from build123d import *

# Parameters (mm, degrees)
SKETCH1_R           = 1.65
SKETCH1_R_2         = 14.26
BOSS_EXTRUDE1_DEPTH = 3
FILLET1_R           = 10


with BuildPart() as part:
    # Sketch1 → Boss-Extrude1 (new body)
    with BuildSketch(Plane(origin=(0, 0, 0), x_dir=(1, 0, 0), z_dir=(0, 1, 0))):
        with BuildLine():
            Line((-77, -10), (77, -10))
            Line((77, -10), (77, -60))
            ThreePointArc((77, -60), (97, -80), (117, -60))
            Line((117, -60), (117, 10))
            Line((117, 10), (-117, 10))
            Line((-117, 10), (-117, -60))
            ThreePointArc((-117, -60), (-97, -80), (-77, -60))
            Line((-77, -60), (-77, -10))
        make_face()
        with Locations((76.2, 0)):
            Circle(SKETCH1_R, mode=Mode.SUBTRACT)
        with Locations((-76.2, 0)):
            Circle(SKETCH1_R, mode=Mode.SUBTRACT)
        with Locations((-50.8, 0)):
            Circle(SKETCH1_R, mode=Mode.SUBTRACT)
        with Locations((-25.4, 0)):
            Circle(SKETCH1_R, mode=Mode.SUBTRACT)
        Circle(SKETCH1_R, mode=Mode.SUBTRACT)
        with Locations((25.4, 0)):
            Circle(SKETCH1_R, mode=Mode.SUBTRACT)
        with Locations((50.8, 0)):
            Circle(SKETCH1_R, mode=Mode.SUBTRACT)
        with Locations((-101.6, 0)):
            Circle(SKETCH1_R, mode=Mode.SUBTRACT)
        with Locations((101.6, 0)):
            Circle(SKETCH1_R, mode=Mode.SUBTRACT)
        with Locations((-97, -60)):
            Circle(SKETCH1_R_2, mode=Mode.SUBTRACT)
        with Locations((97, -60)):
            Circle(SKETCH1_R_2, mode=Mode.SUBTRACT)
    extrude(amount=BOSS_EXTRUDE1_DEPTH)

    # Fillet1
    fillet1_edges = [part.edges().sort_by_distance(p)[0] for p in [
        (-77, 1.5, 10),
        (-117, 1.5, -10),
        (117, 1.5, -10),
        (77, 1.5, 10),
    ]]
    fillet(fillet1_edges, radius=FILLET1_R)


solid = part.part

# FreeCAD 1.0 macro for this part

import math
import FreeCAD as App
import Part
import Sketcher

V = App.Vector


def edges_at(feature, points):
    """Names of the edges that pass closest to the given points."""
    edges = feature.Shape.Edges
    near = lambda p: min(range(len(edges)), key=lambda i: edges[i].distToShape(Part.Vertex(*p))[0])
    return sorted({f"Edge{near(p) + 1}" for p in points})

doc = App.newDocument("Part")
params = doc.addObject("Spreadsheet::Sheet", "Params")
for row, (alias, value) in enumerate([
    ("sketch1_radius", "20 mm"),
    ("sketch1_diameter", "3.3 mm"),
    ("sketch1_diameter2", "28.52 mm"),
    ("sketch1_width", "154 mm"),
    ("sketch1_height", "50 mm"),
    ("pad1_length", "3 mm"),
    ("fillet_radius", "10 mm"),
], start=1):
    params.set(f"A{row}", alias)
    params.set(f"B{row}", "=" + value)
    params.setAlias(f"B{row}", alias)

body = doc.addObject("PartDesign::Body", "Body")

sketch1 = body.newObject("Sketcher::SketchObject", "Sketch")
sketch1.AttachmentSupport = (doc.getObject("XZ_Plane"), [""])
sketch1.MapMode = "FlatFace"
sketch1.addGeometry([
    Part.LineSegment(V(-77, 10, 0), V(77, 10, 0)),
    Part.LineSegment(V(77, 10, 0), V(77, 60, 0)),
    Part.ArcOfCircle(Part.Circle(V(97, 60, 0), V(0, 0, 1), 20), math.radians(0), math.radians(180)),
    Part.LineSegment(V(117, 60, 0), V(117, -10, 0)),
    Part.LineSegment(V(117, -10, 0), V(-117, -10, 0)),
    Part.LineSegment(V(-117, -10, 0), V(-117, 60, 0)),
    Part.ArcOfCircle(Part.Circle(V(-97, 60, 0), V(0, 0, 1), 20), math.radians(0), math.radians(180)),
    Part.LineSegment(V(-77, 60, 0), V(-77, 10, 0)),
    Part.Circle(V(-97, 60, 0), V(0, 0, 1), 14.3),
    Part.Circle(V(97, 60, 0), V(0, 0, 1), 14.3),
    Part.Circle(V(-101.6, 0, 0), V(0, 0, 1), 1.6),
    Part.Circle(V(-76.2, 0, 0), V(0, 0, 1), 1.6),
    Part.Circle(V(-50.8, 0, 0), V(0, 0, 1), 1.6),
    Part.Circle(V(-25.4, 0, 0), V(0, 0, 1), 1.6),
    Part.Circle(V(0, 0, 0), V(0, 0, 1), 1.6),
    Part.Circle(V(25.4, 0, 0), V(0, 0, 1), 1.6),
    Part.Circle(V(50.8, 0, 0), V(0, 0, 1), 1.6),
    Part.Circle(V(76.2, 0, 0), V(0, 0, 1), 1.6),
    Part.Circle(V(101.6, 0, 0), V(0, 0, 1), 1.6),
], False)
sketch1.addConstraint([
    Sketcher.Constraint("Coincident", 0, 2, 1, 1),
    Sketcher.Constraint("Tangent", 1, 2, 2, 2),
    Sketcher.Constraint("Tangent", 2, 1, 3, 1),
    Sketcher.Constraint("Coincident", 3, 2, 4, 1),
    Sketcher.Constraint("Coincident", 4, 2, 5, 1),
    Sketcher.Constraint("Tangent", 5, 2, 6, 2),
    Sketcher.Constraint("Tangent", 6, 1, 7, 1),
    Sketcher.Constraint("Coincident", 7, 2, 0, 1),
    Sketcher.Constraint("Horizontal", 0),
    Sketcher.Constraint("Vertical", 1),
    Sketcher.Constraint("Vertical", 3),
    Sketcher.Constraint("Horizontal", 4),
    Sketcher.Constraint("Vertical", 5),
    Sketcher.Constraint("Vertical", 7),
    Sketcher.Constraint("Coincident", 14, 3, -1, 1),
    Sketcher.Constraint("Coincident", 8, 3, 6, 3),
    Sketcher.Constraint("Coincident", 9, 3, 2, 3),
    Sketcher.Constraint("Equal", 2, 6),
    Sketcher.Constraint("Equal", 8, 9),
    Sketcher.Constraint("Equal", 10, 11),
    Sketcher.Constraint("Equal", 11, 12),
    Sketcher.Constraint("Equal", 12, 13),
    Sketcher.Constraint("Equal", 13, 14),
    Sketcher.Constraint("Equal", 14, 15),
    Sketcher.Constraint("Equal", 15, 16),
    Sketcher.Constraint("Equal", 16, 17),
    Sketcher.Constraint("Equal", 17, 18),
    Sketcher.Constraint("Symmetric", 13, 3, 15, 3, -1, 1),
    Sketcher.Constraint("Symmetric", 12, 3, 16, 3, -1, 1),
    Sketcher.Constraint("Symmetric", 11, 3, 17, 3, -1, 1),
    Sketcher.Constraint("Symmetric", 10, 3, 18, 3, -1, 1),
    Sketcher.Constraint("Symmetric", 2, 3, 6, 3, -2),
    Sketcher.Constraint("PointOnObject", 10, 3, -1),
    Sketcher.Constraint("PointOnObject", 11, 3, -1),
    Sketcher.Constraint("PointOnObject", 12, 3, -1),
    Sketcher.Constraint("PointOnObject", 13, 3, -1),
    Sketcher.Constraint("Radius", 2, 20.0),
    Sketcher.Constraint("Diameter", 10, 3.3),
    Sketcher.Constraint("Diameter", 8, 28.52),
    Sketcher.Constraint("DistanceX", 0, 1, 0, 2, 154.0),
    Sketcher.Constraint("DistanceY", 1, 1, 1, 2, 50.0),
    Sketcher.Constraint("DistanceY", 3, 2, 3, 1, 70.0),
    Sketcher.Constraint("DistanceY", -1, 1, 2, 3, 60.0),
    Sketcher.Constraint("DistanceX", 10, 3, -1, 1, 101.6),
    Sketcher.Constraint("DistanceX", 11, 3, -1, 1, 76.2),
    Sketcher.Constraint("DistanceX", 12, 3, -1, 1, 50.8),
    Sketcher.Constraint("DistanceX", 13, 3, -1, 1, 25.4),
])
sketch1.setExpression("Constraints[36]", "Params.sketch1_radius")
sketch1.setExpression("Constraints[37]", "Params.sketch1_diameter")
sketch1.setExpression("Constraints[38]", "Params.sketch1_diameter2")
sketch1.setExpression("Constraints[39]", "Params.sketch1_width")
sketch1.setExpression("Constraints[40]", "Params.sketch1_height")
pad1 = body.newObject("PartDesign::Pad", "Pad")
pad1.Profile = sketch1
pad1.setExpression("Length", "Params.pad1_length")
pad1.Reversed = True
doc.recompute()

fillet = body.newObject("PartDesign::Fillet", "Fillet")
fillet.Base = (pad1, edges_at(pad1, [
    (-77, 1.5, 10),
    (-117, 1.5, -10),
    (117, 1.5, -10),
    (77, 1.5, 10),
]))
fillet.setExpression("Radius", "Params.fillet_radius")

doc.recompute()
